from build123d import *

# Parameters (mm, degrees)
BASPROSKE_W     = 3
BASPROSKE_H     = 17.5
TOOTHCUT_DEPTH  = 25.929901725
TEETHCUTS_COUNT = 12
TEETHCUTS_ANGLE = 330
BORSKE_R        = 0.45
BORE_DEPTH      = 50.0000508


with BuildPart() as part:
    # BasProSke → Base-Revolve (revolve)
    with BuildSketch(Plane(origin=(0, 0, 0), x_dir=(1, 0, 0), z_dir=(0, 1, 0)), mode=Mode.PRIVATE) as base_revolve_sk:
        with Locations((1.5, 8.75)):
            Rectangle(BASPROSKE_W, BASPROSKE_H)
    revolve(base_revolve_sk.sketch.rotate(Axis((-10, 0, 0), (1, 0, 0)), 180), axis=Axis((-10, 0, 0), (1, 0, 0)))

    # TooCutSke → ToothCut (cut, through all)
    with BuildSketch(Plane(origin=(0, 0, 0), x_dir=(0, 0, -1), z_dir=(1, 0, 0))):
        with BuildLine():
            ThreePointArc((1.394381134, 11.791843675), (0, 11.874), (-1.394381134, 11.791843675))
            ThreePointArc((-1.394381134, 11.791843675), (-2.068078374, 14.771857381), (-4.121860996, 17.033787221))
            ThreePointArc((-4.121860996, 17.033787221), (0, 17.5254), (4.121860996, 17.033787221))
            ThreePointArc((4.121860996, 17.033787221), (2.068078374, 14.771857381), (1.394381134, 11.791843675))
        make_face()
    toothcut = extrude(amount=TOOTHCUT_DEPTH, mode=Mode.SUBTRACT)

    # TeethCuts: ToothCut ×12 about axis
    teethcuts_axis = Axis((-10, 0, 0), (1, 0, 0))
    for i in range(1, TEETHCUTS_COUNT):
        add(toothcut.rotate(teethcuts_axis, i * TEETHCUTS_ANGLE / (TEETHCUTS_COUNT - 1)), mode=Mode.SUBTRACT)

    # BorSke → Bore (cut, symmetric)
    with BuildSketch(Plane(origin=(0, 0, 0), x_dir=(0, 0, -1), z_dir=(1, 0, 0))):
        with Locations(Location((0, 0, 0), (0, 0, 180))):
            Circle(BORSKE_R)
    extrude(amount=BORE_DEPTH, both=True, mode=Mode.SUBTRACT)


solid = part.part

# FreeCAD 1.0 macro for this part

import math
import FreeCAD as App
import Part
import Sketcher
from FreeCAD import Vector
Q = App.Units.Quantity


def add_polygon(sketch, points):
    """Adds a closed chain of lines whose ends are joined by coincident constraints."""
    first, n = sketch.GeometryCount, len(points)
    for a, b in zip(points, points[1:] + points[:1]):
        sketch.addGeometry(Part.LineSegment(App.Vector(*a, 0), App.Vector(*b, 0)), False)
    for i in range(n):
        sketch.addConstraint(Sketcher.Constraint("Coincident", first + i, 2, first + (i + 1) % n, 1))

doc = App.newDocument("Part")
params = doc.addObject("Spreadsheet::Sheet", "Params")
for row, (alias, value) in enumerate([
    ("sketch1_width", "3 mm"),
    ("sketch1_height", "17.5 mm"),
    ("revolution_angle", "360 deg"),
    ("sketch2_radius", "6 mm"),
    ("sketch3_diameter", "0.9 mm"),
    ("pocket2_length", "100.000102 mm"),
], start=1):
    params.set(f"A{row}", alias)
    params.set(f"B{row}", "=" + value)
    params.setAlias(f"B{row}", alias)

body = doc.addObject("PartDesign::Body", "Body")

sketch1 = body.newObject("Sketcher::SketchObject", "Sketch")
sketch1.AttachmentSupport = (doc.getObject("XZ_Plane"), [""])
sketch1.MapMode = "FlatFace"
add_polygon(sketch1, [(0, -17.5), (0, 0), (3, 0), (3, -17.5)])
sketch1.addConstraint(Sketcher.Constraint("Vertical", 0))
sketch1.addConstraint(Sketcher.Constraint("Horizontal", 1))
sketch1.addConstraint(Sketcher.Constraint("Vertical", 2))
sketch1.addConstraint(Sketcher.Constraint("Horizontal", 3))
sketch1.addConstraint(Sketcher.Constraint("Coincident", 0, 2, -1, 1))
sketch1.addConstraint(Sketcher.Constraint("DistanceX", 1, 1, 1, 2, Q("3 mm")))
sketch1.addConstraint(Sketcher.Constraint("DistanceY", 0, 1, 0, 2, Q("17.5 mm")))
sketch1.setExpression("Constraints[9]", "Params.sketch1_width")
sketch1.setExpression("Constraints[10]", "Params.sketch1_height")
revolution = body.newObject("PartDesign::Revolution", "Revolution")
revolution.Profile = sketch1
revolution.ReferenceAxis = (sketch1, ["H_Axis"])
revolution.setExpression("Angle", "Params.revolution_angle")

sketch2 = body.newObject("Sketcher::SketchObject", "Sketch001")
sketch2.AttachmentSupport = (doc.getObject("YZ_Plane"), [""])
sketch2.MapMode = "FlatFace"
sketch2.addGeometry(Part.ArcOfCircle(Part.Circle(Vector(0, 0, 0), Vector(0, 0, 1), 11.9), math.radians(-6.74), math.radians(6.74)), False)
sketch2.addGeometry(Part.ArcOfCircle(Part.Circle(Vector(12, -7.4, 0), Vector(0, 0, 1), 6), math.radians(33), math.radians(92)), False)
sketch2.addGeometry(Part.ArcOfCircle(Part.Circle(Vector(0, 0, 0), Vector(0, 0, 1), 17.5), math.radians(-14), math.radians(14)), False)
sketch2.addGeometry(Part.ArcOfCircle(Part.Circle(Vector(12, 7.4, 0), Vector(0, 0, 1), 6), math.radians(-92), math.radians(-33)), False)
sketch2.addConstraint(Sketcher.Constraint("Coincident", 0, 1, 1, 2))
sketch2.addConstraint(Sketcher.Constraint("Coincident", 1, 1, 2, 1))
sketch2.addConstraint(Sketcher.Constraint("Coincident", 2, 2, 3, 2))
sketch2.addConstraint(Sketcher.Constraint("Coincident", 3, 1, 0, 2))
sketch2.addConstraint(Sketcher.Constraint("Coincident", 0, 3, -1, 1))
sketch2.addConstraint(Sketcher.Constraint("Coincident", 2, 3, -1, 1))
sketch2.addConstraint(Sketcher.Constraint("Equal", 1, 3))
sketch2.addConstraint(Sketcher.Constraint("Symmetric", 1, 3, 3, 3, -1))
sketch2.addConstraint(Sketcher.Constraint("Radius", 1, Q("6 mm")))
sketch2.addConstraint(Sketcher.Constraint("Radius", 0, Q("11.874 mm")))
sketch2.addConstraint(Sketcher.Constraint("Radius", 2, Q("17.5254 mm")))
sketch2.addConstraint(Sketcher.Constraint("DistanceY", 0, 1, -1, 1, Q("1.394381 mm")))
sketch2.addConstraint(Sketcher.Constraint("DistanceY", 1, 1, -1, 1, Q("4.121861 mm")))
sketch2.setExpression("Constraints[8]", "Params.sketch2_radius")
pocket1 = body.newObject("PartDesign::Pocket", "Pocket")
pocket1.Profile = sketch2
pocket1.Type = "ThroughAll"
pocket1.Reversed = True
doc.recompute()

polarpattern = body.newObject("PartDesign::PolarPattern", "PolarPattern")
polarpattern.Originals = [pocket1]
polarpattern.Axis = (doc.getObject("X_Axis"), [""])
polarpattern.Angle = 360
polarpattern.Occurrences = 12
body.Tip = polarpattern

sketch3 = body.newObject("Sketcher::SketchObject", "Sketch002")
sketch3.AttachmentSupport = (doc.getObject("YZ_Plane"), [""])
sketch3.MapMode = "FlatFace"
sketch3.addGeometry(Part.Circle(Vector(0, 0, 0), Vector(0, 0, 1), 0.45), False)
sketch3.addConstraint(Sketcher.Constraint("Coincident", 0, 3, -1, 1))
sketch3.addConstraint(Sketcher.Constraint("Diameter", 0, Q("0.9 mm")))
sketch3.setExpression("Constraints[1]", "Params.sketch3_diameter")
pocket2 = body.newObject("PartDesign::Pocket", "Pocket001")
pocket2.Profile = sketch3
pocket2.setExpression("Length", "Params.pocket2_length")
pocket2.Midplane = True

doc.recompute()
